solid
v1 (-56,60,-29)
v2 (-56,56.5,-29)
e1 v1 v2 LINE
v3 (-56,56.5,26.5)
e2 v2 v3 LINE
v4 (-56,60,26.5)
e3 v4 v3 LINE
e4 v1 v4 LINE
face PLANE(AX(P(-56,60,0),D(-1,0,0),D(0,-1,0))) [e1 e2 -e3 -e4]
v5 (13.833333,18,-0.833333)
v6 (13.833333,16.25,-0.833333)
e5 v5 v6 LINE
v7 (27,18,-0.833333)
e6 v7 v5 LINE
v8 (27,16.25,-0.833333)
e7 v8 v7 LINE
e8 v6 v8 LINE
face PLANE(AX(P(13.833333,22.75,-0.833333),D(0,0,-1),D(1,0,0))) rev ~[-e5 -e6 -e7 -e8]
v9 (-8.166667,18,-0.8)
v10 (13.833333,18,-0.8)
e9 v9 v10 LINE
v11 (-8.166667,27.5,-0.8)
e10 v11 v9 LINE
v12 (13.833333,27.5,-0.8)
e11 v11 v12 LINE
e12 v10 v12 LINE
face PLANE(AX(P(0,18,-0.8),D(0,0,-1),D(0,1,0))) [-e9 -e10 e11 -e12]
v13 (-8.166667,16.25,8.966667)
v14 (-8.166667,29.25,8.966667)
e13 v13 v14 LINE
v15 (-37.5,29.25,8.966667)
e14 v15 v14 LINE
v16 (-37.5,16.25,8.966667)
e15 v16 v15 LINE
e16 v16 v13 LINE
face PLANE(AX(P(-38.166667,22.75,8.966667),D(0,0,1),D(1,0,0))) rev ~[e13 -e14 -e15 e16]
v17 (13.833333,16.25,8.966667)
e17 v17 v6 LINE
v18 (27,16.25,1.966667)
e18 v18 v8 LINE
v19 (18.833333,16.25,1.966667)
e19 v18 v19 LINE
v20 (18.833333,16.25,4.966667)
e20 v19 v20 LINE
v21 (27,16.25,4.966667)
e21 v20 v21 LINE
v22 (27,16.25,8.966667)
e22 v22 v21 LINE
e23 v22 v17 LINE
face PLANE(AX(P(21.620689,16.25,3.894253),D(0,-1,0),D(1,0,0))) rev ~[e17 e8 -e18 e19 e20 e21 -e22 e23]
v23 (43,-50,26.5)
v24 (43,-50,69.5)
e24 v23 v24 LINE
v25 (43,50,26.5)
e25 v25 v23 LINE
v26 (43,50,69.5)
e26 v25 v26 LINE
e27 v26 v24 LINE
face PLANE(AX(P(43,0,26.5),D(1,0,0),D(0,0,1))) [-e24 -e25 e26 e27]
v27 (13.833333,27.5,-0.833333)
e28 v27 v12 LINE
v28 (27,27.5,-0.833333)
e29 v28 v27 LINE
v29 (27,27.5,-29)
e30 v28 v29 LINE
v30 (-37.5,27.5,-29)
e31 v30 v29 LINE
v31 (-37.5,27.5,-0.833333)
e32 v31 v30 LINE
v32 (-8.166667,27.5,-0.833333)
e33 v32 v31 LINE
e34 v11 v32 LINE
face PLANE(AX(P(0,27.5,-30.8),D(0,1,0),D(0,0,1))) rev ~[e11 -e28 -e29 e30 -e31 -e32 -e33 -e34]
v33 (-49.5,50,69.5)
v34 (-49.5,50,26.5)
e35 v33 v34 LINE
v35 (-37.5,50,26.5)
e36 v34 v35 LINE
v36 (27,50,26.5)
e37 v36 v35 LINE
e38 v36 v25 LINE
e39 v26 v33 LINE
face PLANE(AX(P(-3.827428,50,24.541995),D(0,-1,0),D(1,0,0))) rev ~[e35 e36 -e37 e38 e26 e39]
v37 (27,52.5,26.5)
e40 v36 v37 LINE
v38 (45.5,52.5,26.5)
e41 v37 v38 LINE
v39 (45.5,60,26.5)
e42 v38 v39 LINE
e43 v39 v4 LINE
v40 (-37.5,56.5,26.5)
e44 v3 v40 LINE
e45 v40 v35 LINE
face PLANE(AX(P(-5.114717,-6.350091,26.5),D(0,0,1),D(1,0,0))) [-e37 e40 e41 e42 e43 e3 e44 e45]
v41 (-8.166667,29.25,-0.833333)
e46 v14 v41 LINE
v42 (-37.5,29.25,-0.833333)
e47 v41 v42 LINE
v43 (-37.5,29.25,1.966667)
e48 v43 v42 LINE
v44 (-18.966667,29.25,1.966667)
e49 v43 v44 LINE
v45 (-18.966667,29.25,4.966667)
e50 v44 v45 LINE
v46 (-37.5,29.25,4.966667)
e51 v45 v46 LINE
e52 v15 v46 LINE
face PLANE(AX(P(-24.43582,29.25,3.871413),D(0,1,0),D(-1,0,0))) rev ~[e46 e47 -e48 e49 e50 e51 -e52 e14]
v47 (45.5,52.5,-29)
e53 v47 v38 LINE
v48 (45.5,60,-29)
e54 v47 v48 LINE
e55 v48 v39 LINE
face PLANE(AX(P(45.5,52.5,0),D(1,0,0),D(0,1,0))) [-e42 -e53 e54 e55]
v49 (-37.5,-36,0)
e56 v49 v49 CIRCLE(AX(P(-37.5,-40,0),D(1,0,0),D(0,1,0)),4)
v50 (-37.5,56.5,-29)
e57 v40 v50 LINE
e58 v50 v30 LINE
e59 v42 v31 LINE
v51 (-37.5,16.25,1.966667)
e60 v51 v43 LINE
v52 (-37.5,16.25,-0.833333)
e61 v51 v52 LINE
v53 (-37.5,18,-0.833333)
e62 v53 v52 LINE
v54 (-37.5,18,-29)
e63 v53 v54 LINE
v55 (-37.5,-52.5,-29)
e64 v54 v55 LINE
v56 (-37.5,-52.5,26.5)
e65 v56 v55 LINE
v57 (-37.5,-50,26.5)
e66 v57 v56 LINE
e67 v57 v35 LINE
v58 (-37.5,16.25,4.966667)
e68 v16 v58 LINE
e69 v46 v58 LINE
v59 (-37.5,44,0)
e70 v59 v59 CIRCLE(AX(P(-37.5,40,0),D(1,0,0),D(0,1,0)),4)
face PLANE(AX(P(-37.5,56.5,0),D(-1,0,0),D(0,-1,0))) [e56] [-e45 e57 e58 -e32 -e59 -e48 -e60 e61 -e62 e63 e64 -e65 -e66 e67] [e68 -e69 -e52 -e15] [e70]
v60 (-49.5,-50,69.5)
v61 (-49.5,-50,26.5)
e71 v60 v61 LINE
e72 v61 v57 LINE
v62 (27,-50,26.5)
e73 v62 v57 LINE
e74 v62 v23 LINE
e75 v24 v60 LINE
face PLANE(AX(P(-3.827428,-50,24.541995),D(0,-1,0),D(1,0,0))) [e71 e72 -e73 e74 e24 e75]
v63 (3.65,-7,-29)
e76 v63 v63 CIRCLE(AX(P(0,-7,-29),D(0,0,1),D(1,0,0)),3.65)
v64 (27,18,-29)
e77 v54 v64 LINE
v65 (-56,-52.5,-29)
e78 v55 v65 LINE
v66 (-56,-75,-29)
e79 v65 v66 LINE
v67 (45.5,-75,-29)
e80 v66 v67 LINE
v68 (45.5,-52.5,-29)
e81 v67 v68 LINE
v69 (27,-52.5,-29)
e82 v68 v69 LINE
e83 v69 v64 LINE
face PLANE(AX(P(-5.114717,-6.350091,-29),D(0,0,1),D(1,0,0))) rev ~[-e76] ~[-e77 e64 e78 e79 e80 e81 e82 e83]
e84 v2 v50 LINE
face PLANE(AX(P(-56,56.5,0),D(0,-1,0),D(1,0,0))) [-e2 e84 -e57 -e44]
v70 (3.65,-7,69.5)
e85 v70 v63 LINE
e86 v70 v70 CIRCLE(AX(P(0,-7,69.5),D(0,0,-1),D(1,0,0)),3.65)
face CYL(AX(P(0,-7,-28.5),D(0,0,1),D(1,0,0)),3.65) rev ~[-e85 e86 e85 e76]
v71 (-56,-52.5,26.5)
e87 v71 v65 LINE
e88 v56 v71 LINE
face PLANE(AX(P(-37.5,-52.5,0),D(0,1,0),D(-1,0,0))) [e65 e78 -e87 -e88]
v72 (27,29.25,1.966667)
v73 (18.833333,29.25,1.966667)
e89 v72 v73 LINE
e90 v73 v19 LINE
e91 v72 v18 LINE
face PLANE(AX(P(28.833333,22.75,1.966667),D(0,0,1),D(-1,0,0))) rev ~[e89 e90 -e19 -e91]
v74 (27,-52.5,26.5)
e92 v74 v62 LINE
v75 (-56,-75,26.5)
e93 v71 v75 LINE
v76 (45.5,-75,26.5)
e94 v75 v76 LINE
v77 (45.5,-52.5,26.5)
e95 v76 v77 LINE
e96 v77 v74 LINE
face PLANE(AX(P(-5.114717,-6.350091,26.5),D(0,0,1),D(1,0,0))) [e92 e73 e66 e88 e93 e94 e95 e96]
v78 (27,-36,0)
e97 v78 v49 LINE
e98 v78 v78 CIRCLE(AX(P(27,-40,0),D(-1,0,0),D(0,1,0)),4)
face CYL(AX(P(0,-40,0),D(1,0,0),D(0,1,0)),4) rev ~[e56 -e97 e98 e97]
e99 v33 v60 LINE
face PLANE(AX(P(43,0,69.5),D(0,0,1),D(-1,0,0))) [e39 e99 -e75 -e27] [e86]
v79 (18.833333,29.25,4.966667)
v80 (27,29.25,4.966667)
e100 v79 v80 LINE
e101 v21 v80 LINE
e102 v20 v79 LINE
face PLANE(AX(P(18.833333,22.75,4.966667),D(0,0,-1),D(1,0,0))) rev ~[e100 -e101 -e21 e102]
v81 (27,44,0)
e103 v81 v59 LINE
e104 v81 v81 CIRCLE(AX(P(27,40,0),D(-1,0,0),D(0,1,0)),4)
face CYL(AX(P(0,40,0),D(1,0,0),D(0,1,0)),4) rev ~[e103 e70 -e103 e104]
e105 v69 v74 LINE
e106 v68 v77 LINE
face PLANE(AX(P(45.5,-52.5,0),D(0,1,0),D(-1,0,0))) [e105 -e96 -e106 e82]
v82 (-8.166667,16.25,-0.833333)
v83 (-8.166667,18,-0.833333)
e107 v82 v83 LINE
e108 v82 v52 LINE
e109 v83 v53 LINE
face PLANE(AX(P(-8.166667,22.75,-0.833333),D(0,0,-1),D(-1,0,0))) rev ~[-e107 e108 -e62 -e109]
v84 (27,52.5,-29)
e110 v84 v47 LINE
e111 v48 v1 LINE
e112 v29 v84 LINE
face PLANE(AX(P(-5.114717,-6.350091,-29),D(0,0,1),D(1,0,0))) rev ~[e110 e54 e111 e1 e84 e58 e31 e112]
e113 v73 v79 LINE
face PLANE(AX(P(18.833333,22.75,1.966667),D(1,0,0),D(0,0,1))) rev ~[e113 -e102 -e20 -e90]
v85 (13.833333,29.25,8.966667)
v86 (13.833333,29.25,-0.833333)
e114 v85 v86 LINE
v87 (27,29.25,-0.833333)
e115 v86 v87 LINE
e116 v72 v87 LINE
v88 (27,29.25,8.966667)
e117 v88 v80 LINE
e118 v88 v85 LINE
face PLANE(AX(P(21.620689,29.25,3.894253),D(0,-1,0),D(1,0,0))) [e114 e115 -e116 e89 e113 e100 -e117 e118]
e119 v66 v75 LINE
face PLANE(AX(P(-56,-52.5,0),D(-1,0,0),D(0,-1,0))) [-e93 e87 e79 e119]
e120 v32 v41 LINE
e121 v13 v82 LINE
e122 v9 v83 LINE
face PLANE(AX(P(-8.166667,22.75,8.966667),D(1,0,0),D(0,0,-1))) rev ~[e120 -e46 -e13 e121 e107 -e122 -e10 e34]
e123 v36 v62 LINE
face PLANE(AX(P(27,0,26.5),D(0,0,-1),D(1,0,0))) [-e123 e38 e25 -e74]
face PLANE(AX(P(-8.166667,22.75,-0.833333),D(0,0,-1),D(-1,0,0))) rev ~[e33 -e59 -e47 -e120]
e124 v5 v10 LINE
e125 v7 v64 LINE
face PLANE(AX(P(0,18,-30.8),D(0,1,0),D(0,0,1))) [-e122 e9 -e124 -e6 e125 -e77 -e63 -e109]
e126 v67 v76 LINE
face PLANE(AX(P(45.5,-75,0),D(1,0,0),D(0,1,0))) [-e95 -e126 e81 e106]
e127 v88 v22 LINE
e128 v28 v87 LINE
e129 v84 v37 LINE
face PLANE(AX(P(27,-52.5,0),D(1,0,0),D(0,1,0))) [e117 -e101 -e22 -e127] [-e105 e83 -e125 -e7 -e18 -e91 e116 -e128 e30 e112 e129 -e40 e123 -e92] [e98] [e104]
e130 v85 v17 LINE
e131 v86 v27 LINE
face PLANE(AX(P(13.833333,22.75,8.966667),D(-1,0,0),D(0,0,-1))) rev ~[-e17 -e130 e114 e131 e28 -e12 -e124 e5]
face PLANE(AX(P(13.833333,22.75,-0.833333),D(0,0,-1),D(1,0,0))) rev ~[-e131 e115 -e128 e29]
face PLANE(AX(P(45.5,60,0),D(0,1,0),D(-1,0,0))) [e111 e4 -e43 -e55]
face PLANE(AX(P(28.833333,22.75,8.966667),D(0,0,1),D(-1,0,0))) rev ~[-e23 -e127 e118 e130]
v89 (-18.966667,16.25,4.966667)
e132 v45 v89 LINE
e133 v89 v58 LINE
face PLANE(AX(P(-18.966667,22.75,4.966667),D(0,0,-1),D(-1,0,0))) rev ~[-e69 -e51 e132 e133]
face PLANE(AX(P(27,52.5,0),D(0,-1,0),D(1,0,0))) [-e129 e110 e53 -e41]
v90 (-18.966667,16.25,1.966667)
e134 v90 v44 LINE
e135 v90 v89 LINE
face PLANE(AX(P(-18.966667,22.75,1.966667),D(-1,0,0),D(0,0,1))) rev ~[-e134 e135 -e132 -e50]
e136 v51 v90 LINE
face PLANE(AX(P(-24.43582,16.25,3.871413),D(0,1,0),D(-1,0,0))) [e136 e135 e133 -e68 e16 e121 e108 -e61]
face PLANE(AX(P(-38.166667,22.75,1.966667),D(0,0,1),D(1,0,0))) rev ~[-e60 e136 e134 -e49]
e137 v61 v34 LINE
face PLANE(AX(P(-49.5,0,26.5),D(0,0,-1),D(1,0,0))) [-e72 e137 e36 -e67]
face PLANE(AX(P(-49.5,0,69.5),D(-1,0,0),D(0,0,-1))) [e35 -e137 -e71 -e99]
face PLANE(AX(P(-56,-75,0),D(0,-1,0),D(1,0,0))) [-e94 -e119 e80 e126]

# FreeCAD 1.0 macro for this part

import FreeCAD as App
import Part
import Sketcher
Q = App.Units.Quantity


def add_polygon(sketch, points):
    """Adds a closed chain of lines whose ends are joined by coincident constraints."""
    first, n = sketch.GeometryCount, len(points)
    for a, b in zip(points, points[1:] + points[:1]):
        sketch.addGeometry(Part.LineSegment(App.Vector(*a, 0), App.Vector(*b, 0)), False)
    for i in range(n):
        sketch.addConstraint(Sketcher.Constraint("Coincident", first + i, 2, first + (i + 1) % n, 1))

doc = App.newDocument("Part")
body = doc.addObject("PartDesign::Body", "Body")

# Sketch on XZ plane
sketch1 = body.newObject("Sketcher::SketchObject", "Sketch")
sketch1.AttachmentSupport = (doc.getObject("XZ_Plane"), [""])
sketch1.MapMode = "FlatFace"
add_polygon(sketch1, [(-37.5, -28.5), (27, -28.5), (27, 26.5), (43, 26.5), (43, 69.5), (-49.5, 69.5), (-49.5, 26.5), (-37.5, 26.5)])  # lines 0-7
sketch1.addConstraint([
    Sketcher.Constraint("Horizontal", 0),
    Sketcher.Constraint("Vertical", 1),
    Sketcher.Constraint("Horizontal", 2),
    Sketcher.Constraint("Vertical", 3),
    Sketcher.Constraint("Horizontal", 4),
    Sketcher.Constraint("Vertical", 5),
    Sketcher.Constraint("Horizontal", 6),
    Sketcher.Constraint("Vertical", 7),
    Sketcher.Constraint("Horizontal", 2, 2, 5, 2),
    Sketcher.Constraint("DistanceX", 2, 1, 2, 2, Q("16 mm")),
    Sketcher.Constraint("DistanceX", 6, 1, 6, 2, Q("12 mm")),
    Sketcher.Constraint("DistanceY", 1, 1, 1, 2, Q("55 mm")),
    Sketcher.Constraint("DistanceY", 3, 1, 3, 2, Q("43 mm")),
    Sketcher.Constraint("DistanceX", 0, 1, 0, 2, Q("64.5 mm")),
    Sketcher.Constraint("DistanceX", -1, 1, 0, 2, Q("27 mm")),
    Sketcher.Constraint("DistanceY", 0, 2, -1, 1, Q("28.5 mm")),
])
pad1 = body.newObject("PartDesign::Pad", "Pad")
pad1.Profile = sketch1
pad1.Length = 100
pad1.Midplane = True

# Sketch on XY plane
sketch2 = body.newObject("Sketcher::SketchObject", "Sketch001")
sketch2.AttachmentSupport = (doc.getObject("XY_Plane"), [""])
sketch2.MapMode = "FlatFace"
add_polygon(sketch2, [(-56, -52.5), (-56, -75), (45.5, -75), (45.5, -52.5), (27, -52.5), (27, 52.5), (45.5, 52.5), (45.5, 60), (-56, 60), (-56, 56.5), (-37.5, 56.5), (-37.5, -52.5)])  # lines 0-11
sketch2.addConstraint([
    Sketcher.Constraint("Vertical", 0),
    Sketcher.Constraint("Horizontal", 1),
    Sketcher.Constraint("Vertical", 2),
    Sketcher.Constraint("Horizontal", 3),
    Sketcher.Constraint("Vertical", 4),
    Sketcher.Constraint("Horizontal", 5),
    Sketcher.Constraint("Vertical", 6),
    Sketcher.Constraint("Horizontal", 7),
    Sketcher.Constraint("Vertical", 8),
    Sketcher.Constraint("Horizontal", 9),
    Sketcher.Constraint("Vertical", 10),
    Sketcher.Constraint("Horizontal", 11),
    Sketcher.Constraint("Symmetric", 2, 2, 5, 2, -1),
    Sketcher.Constraint("Horizontal", 3, 2, 10, 2),
    Sketcher.Constraint("Vertical", 0, 2, 7, 2),
    Sketcher.Constraint("Equal", 5, 9),
    Sketcher.Constraint("DistanceY", 4, 1, 4, 2, Q("105 mm")),
    Sketcher.Constraint("DistanceY", 10, 2, 10, 1, Q("109 mm")),
    Sketcher.Constraint("DistanceX", 1, 1, 1, 2, Q("101.5 mm")),
    Sketcher.Constraint("DistanceX", 3, 2, 3, 1, Q("18.5 mm")),
    Sketcher.Constraint("DistanceY", 0, 2, 0, 1, Q("22.5 mm")),
    Sketcher.Constraint("DistanceY", 6, 1, 6, 2, Q("7.5 mm")),
    Sketcher.Constraint("DistanceX", 0, 2, -1, 1, Q("56 mm")),
])
pad2 = body.newObject("PartDesign::Pad", "Pad001")
pad2.Profile = sketch2
pad2.Type = "TwoLengths"
pad2.Length = 26.5
pad2.Length2 = 29

# Sketch on XY plane
sketch3 = body.newObject("Sketcher::SketchObject", "Sketch002")
sketch3.AttachmentSupport = (doc.getObject("XY_Plane"), [""])
sketch3.MapMode = "FlatFace"
sketch3.AttachmentOffset = App.Placement(App.Vector(0, 0, -28.5), App.Rotation())
sketch3.addGeometry(Part.Circle(App.Vector(0, -7, 0), App.Vector(0, 0, 1), 3.65), False)
sketch3.addConstraint([
    Sketcher.Constraint("PointOnObject", 0, 3, -2),
    Sketcher.Constraint("Diameter", 0, Q("7.3 mm")),
    Sketcher.Constraint("DistanceY", 0, 3, -1, 1, Q("7 mm")),
])
pocket1 = body.newObject("PartDesign::Pocket", "Pocket")
pocket1.Profile = sketch3
pocket1.Type = "ThroughAll"
pocket1.Midplane = True

# Sketch on YZ plane
sketch4 = body.newObject("Sketcher::SketchObject", "Sketch003")
sketch4.AttachmentSupport = (doc.getObject("YZ_Plane"), [""])
sketch4.MapMode = "FlatFace"
sketch4.addGeometry(Part.Circle(App.Vector(-40, 0, 0), App.Vector(0, 0, 1), 4), False)  # 0
sketch4.addGeometry(Part.Circle(App.Vector(40, 0, 0), App.Vector(0, 0, 1), 4), False)  # 1
add_polygon(sketch4, [(18, -0.8), (18, -30.8), (27.5, -30.8), (27.5, -0.8)])  # lines 2-5
sketch4.addConstraint([
    Sketcher.Constraint("Vertical", 2),
    Sketcher.Constraint("Horizontal", 3),
    Sketcher.Constraint("Vertical", 4),
    Sketcher.Constraint("Horizontal", 5),
    Sketcher.Constraint("Equal", 0, 1),
    Sketcher.Constraint("Symmetric", 0, 3, 1, 3, -1, 1),
    Sketcher.Constraint("PointOnObject", 0, 3, -1),
    Sketcher.Constraint("Diameter", 0, Q("8 mm")),
    Sketcher.Constraint("DistanceY", 2, 2, 2, 1, Q("30 mm")),
    Sketcher.Constraint("DistanceX", 3, 1, 3, 2, Q("9.5 mm")),
    Sketcher.Constraint("DistanceX", 0, 3, -1, 1, Q("40 mm")),
    Sketcher.Constraint("DistanceX", -1, 1, 2, 2, Q("18 mm")),
    Sketcher.Constraint("DistanceY", 2, 2, -1, 1, Q("30.8 mm")),
])
pocket2 = body.newObject("PartDesign::Pocket", "Pocket001")
pocket2.Profile = sketch4
pocket2.Type = "ThroughAll"
pocket2.Midplane = True

# Sketch on XZ plane
sketch5 = body.newObject("Sketcher::SketchObject", "Sketch004")
sketch5.AttachmentSupport = (doc.getObject("XZ_Plane"), [""])
sketch5.MapMode = "FlatFace"
sketch5.AttachmentOffset = App.Placement(App.Vector(0, 0, -22.75), App.Rotation())
add_polygon(sketch5, [(13.833333, 8.966667), (28.833333, 8.966667), (28.833333, 4.966667), (18.833333, 4.966667), (18.833333, 1.966667), (28.833333, 1.966667), (28.833333, -0.833333), (13.833333, -0.833333)])  # lines 0-7
add_polygon(sketch5, [(-38.166667, 8.966667), (-8.166667, 8.966667), (-8.166667, -0.833333), (-38.166667, -0.833333), (-38.166667, 1.966667), (-18.966667, 1.966667), (-18.966667, 4.966667), (-38.166667, 4.966667)])  # lines 8-15
sketch5.addConstraint([
    Sketcher.Constraint("Horizontal", 0),
    Sketcher.Constraint("Vertical", 1),
    Sketcher.Constraint("Horizontal", 2),
    Sketcher.Constraint("Vertical", 3),
    Sketcher.Constraint("Horizontal", 4),
    Sketcher.Constraint("Vertical", 5),
    Sketcher.Constraint("Horizontal", 6),
    Sketcher.Constraint("Vertical", 7),
    Sketcher.Constraint("Horizontal", 8),
    Sketcher.Constraint("Vertical", 9),
    Sketcher.Constraint("Horizontal", 10),
    Sketcher.Constraint("Vertical", 11),
    Sketcher.Constraint("Horizontal", 12),
    Sketcher.Constraint("Vertical", 13),
    Sketcher.Constraint("Horizontal", 14),
    Sketcher.Constraint("Vertical", 15),
    Sketcher.Constraint("Horizontal", 7, 2, 8, 2),
    Sketcher.Constraint("Horizontal", 6, 2, 9, 2),
    Sketcher.Constraint("Horizontal", 4, 2, 11, 2),
    Sketcher.Constraint("Horizontal", 2, 2, 13, 2),
    Sketcher.Constraint("Vertical", 1, 2, 4, 2),
    Sketcher.Constraint("Vertical", 11, 2, 14, 2),
    Sketcher.Constraint("DistanceX", 0, 1, 0, 2, Q("15 mm")),
    Sketcher.Constraint("DistanceX", 2, 2, 2, 1, Q("10 mm")),
    Sketcher.Constraint("DistanceX", 8, 1, 8, 2, Q("30 mm")),
    Sketcher.Constraint("DistanceY", 1, 2, 1, 1, Q("4 mm")),
    Sketcher.Constraint("DistanceY", 3, 2, 3, 1, Q("3 mm")),
    Sketcher.Constraint("DistanceX", 12, 1, 12, 2, Q("19.2 mm")),
    Sketcher.Constraint("DistanceY", 5, 2, 5, 1, Q("2.8 mm")),
    Sketcher.Constraint("DistanceX", 8, 2, 7, 2, Q("22 mm")),
    Sketcher.Constraint("DistanceX", -1, 1, 0, 2, Q("28.833333 mm")),
    Sketcher.Constraint("DistanceY", -1, 1, 0, 2, Q("8.966667 mm")),
])
pocket3 = body.newObject("PartDesign::Pocket", "Pocket002")
pocket3.Profile = sketch5
pocket3.Length = 13
pocket3.Midplane = True

doc.recompute()
